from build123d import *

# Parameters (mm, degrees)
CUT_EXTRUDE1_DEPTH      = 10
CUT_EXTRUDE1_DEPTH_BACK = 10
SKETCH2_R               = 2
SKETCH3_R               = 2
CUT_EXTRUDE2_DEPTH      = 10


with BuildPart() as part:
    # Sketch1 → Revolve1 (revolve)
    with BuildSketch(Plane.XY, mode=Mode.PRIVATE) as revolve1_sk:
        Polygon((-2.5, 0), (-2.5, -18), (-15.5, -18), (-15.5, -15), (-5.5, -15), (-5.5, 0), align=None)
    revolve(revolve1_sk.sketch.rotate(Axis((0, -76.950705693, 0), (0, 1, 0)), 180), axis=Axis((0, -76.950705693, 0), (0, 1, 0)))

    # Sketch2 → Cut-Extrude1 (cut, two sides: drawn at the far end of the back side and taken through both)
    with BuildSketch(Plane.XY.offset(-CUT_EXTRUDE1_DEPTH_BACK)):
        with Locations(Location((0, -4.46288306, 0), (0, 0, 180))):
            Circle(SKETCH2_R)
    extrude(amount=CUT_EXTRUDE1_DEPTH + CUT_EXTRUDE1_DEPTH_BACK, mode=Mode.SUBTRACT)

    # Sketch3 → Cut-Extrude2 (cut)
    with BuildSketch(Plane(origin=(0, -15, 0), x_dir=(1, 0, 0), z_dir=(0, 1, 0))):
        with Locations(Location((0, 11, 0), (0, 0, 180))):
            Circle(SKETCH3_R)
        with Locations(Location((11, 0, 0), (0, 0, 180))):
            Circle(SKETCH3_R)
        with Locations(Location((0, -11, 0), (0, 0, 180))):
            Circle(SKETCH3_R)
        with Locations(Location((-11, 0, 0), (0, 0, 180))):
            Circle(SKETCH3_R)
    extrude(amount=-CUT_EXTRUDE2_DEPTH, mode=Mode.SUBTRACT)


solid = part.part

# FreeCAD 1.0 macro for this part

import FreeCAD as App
import Part
import Sketcher

V = App.Vector
Q = App.Units.Quantity


def add_polygon(sketch, points):
    """Adds a closed chain of lines whose ends are joined by coincident constraints."""
    first, n = sketch.GeometryCount, len(points)
    for a, b in zip(points, points[1:] + points[:1]):
        sketch.addGeometry(Part.LineSegment(App.Vector(*a, 0), App.Vector(*b, 0)), False)
    for i in range(n):
        sketch.addConstraint(Sketcher.Constraint("Coincident", first + i, 2, first + (i + 1) % n, 1))

doc = App.newDocument("Part")
params = doc.addObject("Spreadsheet::Sheet", "Params")
for row, (alias, value) in enumerate([
    ("sketch1_width", "3 mm"),
    ("sketch1_width2", "10 mm"),
    ("sketch1_height", "18 mm"),
    ("revolution_angle", "360 deg"),
    ("sketch2_diameter", "4 mm"),
    ("sketch3_diameter", "4 mm"),
    ("pocket2_length", "10 mm"),
], start=1):
    params.set(f"A{row}", alias)
    params.set(f"B{row}", "=" + value)
    params.setAlias(f"B{row}", alias)

body = doc.addObject("PartDesign::Body", "Body")

# Sketch on XY plane
sketch1 = body.newObject("Sketcher::SketchObject", "Sketch")
sketch1.AttachmentSupport = (doc.getObject("XY_Plane"), [""])
sketch1.MapMode = "FlatFace"
add_polygon(sketch1, [(-2.5, -18), (-2.5, 0), (-5.5, 0), (-5.5, -15), (-15.5, -15), (-15.5, -18)])  # lines 0-5
sketch1.addConstraint([
    Sketcher.Constraint("Vertical", 0),
    Sketcher.Constraint("Horizontal", 1),
    Sketcher.Constraint("Vertical", 2),
    Sketcher.Constraint("Horizontal", 3),
    Sketcher.Constraint("Vertical", 4),
    Sketcher.Constraint("Horizontal", 5),
    Sketcher.Constraint("PointOnObject", 0, 2, -1),
    Sketcher.Constraint("Equal", 1, 4),
    Sketcher.Constraint("DistanceX", 1, 2, 1, 1, Q("3 mm")),
    Sketcher.Constraint("DistanceX", 3, 2, 3, 1, Q("10 mm")),
    Sketcher.Constraint("DistanceY", 0, 1, 0, 2, Q("18 mm")),
    Sketcher.Constraint("DistanceX", 0, 2, -1, 1, Q("2.5 mm")),
])
sketch1.setExpression("Constraints[14]", "Params.sketch1_width")
sketch1.setExpression("Constraints[15]", "Params.sketch1_width2")
sketch1.setExpression("Constraints[16]", "Params.sketch1_height")
revolution = body.newObject("PartDesign::Revolution", "Revolution")
revolution.Profile = sketch1
revolution.ReferenceAxis = (sketch1, ["V_Axis"])
revolution.setExpression("Angle", "Params.revolution_angle")

# Sketch on XY plane
sketch2 = body.newObject("Sketcher::SketchObject", "Sketch001")
sketch2.AttachmentSupport = (doc.getObject("XY_Plane"), [""])
sketch2.MapMode = "FlatFace"
sketch2.addGeometry(Part.Circle(V(0, -4.462883, 0), V(0, 0, 1), 2), False)
sketch2.addConstraint([
    Sketcher.Constraint("PointOnObject", 0, 3, -2),
    Sketcher.Constraint("Diameter", 0, Q("4 mm")),
    Sketcher.Constraint("DistanceY", 0, 3, -1, 1, Q("4.462883 mm")),
])
sketch2.setExpression("Constraints[1]", "Params.sketch2_diameter")
pocket1 = body.newObject("PartDesign::Pocket", "Pocket")
pocket1.Profile = sketch2
pocket1.Type = "ThroughAll"
pocket1.Midplane = True

# Sketch on XZ plane
sketch3 = body.newObject("Sketcher::SketchObject", "Sketch002")
sketch3.AttachmentSupport = (doc.getObject("XZ_Plane"), [""])
sketch3.MapMode = "FlatFace"
sketch3.AttachmentOffset = App.Placement(V(0, 0, 15), App.Rotation())
sketch3.addGeometry([
    Part.Circle(V(0, -11, 0), V(0, 0, 1), 2),
    Part.Circle(V(11, 0, 0), V(0, 0, 1), 2),
    Part.Circle(V(0, 11, 0), V(0, 0, 1), 2),
    Part.Circle(V(-11, 0, 0), V(0, 0, 1), 2),
], False)
sketch3.addConstraint([
    Sketcher.Constraint("Equal", 0, 1),
    Sketcher.Constraint("Equal", 1, 2),
    Sketcher.Constraint("Equal", 2, 3),
    Sketcher.Constraint("Symmetric", 0, 3, 2, 3, -1, 1),
    Sketcher.Constraint("Symmetric", 1, 3, 3, 3, -1, 1),
    Sketcher.Constraint("PointOnObject", 0, 3, -2),
    Sketcher.Constraint("PointOnObject", 1, 3, -1),
    Sketcher.Constraint("Diameter", 0, Q("4 mm")),
    Sketcher.Constraint("DistanceY", 0, 3, -1, 1, Q("11 mm")),
    Sketcher.Constraint("DistanceX", -1, 1, 1, 3, Q("11 mm")),
])
sketch3.setExpression("Constraints[7]", "Params.sketch3_diameter")
pocket2 = body.newObject("PartDesign::Pocket", "Pocket001")
pocket2.Profile = sketch3
pocket2.setExpression("Length", "Params.pocket2_length")
pocket2.Reversed = True

doc.recompute()
